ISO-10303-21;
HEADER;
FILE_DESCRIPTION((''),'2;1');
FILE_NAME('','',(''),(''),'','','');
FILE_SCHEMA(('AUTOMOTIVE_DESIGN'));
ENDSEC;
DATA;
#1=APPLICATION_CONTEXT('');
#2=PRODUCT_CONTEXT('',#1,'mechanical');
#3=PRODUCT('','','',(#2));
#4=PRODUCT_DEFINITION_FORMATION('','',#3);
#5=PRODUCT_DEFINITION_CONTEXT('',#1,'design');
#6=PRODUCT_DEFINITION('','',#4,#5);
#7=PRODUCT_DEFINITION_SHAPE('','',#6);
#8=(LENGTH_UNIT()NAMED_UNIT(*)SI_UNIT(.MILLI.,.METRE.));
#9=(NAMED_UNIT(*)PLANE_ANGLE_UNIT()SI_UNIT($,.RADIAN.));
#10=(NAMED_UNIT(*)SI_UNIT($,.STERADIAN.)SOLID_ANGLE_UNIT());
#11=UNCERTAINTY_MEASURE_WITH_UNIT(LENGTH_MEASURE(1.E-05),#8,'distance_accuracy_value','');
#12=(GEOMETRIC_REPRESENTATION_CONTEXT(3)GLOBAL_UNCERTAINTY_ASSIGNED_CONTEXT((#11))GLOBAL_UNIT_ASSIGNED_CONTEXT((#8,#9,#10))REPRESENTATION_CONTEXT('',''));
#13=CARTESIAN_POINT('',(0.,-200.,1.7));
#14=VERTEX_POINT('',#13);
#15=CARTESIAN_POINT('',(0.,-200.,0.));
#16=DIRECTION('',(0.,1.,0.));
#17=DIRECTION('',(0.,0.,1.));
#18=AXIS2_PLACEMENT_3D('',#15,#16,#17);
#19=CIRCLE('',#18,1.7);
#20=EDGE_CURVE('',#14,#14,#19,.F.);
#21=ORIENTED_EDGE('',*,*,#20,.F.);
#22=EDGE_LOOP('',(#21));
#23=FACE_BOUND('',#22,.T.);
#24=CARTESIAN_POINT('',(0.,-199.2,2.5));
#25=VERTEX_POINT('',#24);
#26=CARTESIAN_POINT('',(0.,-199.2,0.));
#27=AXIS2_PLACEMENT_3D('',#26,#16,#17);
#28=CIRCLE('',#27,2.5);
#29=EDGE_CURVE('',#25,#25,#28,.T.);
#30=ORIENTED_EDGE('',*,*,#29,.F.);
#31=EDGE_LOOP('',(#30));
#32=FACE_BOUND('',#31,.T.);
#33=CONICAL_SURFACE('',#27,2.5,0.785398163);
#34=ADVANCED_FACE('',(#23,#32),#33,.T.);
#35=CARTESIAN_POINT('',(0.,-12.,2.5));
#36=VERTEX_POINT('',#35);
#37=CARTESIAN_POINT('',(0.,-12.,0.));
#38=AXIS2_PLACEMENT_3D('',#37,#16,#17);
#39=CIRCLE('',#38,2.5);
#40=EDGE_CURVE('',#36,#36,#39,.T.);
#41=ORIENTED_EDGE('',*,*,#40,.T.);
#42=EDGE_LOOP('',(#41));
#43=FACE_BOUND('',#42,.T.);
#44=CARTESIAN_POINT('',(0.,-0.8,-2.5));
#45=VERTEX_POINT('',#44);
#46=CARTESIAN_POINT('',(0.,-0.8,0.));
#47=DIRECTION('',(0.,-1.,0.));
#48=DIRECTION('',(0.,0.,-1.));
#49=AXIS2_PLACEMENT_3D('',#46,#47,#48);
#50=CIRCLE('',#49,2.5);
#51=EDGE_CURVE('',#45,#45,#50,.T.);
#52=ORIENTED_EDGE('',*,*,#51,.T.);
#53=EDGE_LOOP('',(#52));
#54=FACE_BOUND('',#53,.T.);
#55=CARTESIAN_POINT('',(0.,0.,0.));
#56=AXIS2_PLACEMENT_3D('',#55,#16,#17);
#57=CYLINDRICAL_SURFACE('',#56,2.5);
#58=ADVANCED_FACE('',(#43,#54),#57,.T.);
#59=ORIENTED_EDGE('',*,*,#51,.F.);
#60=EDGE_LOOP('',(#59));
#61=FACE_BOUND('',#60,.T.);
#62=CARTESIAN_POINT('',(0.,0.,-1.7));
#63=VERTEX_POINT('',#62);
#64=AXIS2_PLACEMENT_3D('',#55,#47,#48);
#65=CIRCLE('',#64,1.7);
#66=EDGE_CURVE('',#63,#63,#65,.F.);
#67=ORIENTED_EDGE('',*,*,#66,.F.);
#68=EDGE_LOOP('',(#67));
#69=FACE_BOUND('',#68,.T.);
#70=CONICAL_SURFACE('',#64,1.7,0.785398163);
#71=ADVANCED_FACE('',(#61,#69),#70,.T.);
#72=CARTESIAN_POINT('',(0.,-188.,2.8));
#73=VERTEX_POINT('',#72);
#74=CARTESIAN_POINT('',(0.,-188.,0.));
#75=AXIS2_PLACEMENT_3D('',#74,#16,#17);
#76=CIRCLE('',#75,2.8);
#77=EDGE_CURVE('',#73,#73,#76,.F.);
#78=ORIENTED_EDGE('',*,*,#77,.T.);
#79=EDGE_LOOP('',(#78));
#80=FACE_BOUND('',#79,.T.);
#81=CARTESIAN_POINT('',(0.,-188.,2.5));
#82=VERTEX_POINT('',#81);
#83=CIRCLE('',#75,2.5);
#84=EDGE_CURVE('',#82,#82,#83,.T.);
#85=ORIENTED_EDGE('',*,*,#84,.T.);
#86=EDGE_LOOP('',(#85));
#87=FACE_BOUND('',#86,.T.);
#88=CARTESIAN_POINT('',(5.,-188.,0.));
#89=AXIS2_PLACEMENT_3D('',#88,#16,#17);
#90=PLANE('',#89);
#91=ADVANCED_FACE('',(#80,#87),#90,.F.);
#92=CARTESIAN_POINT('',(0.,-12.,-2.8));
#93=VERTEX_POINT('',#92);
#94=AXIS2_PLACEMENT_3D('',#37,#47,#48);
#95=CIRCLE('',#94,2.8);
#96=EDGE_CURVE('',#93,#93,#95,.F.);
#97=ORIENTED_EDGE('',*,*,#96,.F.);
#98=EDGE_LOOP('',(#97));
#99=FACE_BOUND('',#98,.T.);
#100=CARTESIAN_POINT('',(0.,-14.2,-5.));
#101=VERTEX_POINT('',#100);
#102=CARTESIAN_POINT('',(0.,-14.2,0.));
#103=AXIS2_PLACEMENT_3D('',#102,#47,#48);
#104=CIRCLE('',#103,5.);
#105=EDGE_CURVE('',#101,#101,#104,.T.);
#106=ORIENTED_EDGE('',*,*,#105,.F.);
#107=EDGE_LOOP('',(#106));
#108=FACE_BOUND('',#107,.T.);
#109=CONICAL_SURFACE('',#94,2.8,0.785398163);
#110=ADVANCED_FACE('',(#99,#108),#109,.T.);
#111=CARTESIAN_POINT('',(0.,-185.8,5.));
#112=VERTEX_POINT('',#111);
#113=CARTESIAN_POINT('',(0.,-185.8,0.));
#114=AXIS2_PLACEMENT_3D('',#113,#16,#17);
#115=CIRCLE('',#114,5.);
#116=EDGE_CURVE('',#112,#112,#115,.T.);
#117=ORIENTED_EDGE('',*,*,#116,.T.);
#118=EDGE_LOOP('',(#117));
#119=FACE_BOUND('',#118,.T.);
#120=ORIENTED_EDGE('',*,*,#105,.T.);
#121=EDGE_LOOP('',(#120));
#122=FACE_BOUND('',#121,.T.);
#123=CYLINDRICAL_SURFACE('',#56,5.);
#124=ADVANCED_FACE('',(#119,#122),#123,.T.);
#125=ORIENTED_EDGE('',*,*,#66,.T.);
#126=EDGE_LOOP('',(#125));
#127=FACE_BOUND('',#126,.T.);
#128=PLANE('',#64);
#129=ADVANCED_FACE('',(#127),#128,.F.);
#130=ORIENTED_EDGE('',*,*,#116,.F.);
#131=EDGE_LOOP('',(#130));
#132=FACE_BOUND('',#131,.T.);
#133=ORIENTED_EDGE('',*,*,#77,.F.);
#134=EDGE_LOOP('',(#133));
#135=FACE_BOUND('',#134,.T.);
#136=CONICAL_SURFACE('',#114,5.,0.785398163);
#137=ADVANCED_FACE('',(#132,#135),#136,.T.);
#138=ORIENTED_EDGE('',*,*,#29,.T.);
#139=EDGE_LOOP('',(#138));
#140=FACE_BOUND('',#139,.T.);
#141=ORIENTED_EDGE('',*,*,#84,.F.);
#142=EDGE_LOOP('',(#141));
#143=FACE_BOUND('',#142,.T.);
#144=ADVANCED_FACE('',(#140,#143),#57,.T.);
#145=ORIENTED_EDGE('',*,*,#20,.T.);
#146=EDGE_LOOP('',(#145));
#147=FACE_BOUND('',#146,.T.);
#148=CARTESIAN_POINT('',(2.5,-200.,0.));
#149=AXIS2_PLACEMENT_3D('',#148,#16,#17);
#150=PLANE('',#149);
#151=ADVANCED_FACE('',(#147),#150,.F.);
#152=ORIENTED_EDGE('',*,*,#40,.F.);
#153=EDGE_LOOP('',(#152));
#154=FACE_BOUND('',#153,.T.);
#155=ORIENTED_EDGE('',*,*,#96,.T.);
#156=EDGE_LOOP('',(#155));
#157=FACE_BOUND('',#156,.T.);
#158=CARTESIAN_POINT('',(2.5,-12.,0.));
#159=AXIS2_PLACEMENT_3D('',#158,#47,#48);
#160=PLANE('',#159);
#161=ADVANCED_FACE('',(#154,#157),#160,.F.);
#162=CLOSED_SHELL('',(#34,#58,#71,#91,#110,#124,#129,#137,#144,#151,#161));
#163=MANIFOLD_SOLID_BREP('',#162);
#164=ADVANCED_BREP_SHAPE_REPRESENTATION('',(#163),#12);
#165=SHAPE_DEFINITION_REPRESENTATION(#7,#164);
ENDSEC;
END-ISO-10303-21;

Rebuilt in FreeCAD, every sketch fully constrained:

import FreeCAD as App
import Part
import Sketcher

V = App.Vector


def edges_at(feature, points):
    """Names of the edges that pass closest to the given points."""
    edges = feature.Shape.Edges
    near = lambda p: min(range(len(edges)), key=lambda i: edges[i].distToShape(Part.Vertex(*p))[0])
    return sorted({f"Edge{near(p) + 1}" for p in points})

doc = App.newDocument("Part")
body = doc.addObject("PartDesign::Body", "Body")

# Sketch on XY plane
sketch1 = doc.addObject("Sketcher::SketchObject", "Sketch")
body.addObject(sketch1)
sketch1.AttachmentSupport = (doc.XY_Plane, [""])
sketch1.MapMode = "FlatFace"
sketch1.addGeometry([
    Part.LineSegment(V(2.5, 0, 0), V(0, 0, 0)),  # 0
    Part.LineSegment(V(0, 0, 0), V(0, -200, 0)),  # 1
    Part.LineSegment(V(0, -200, 0), V(2.5, -200, 0)),  # 2
    Part.LineSegment(V(2.5, -200, 0), V(2.5, -188, 0)),  # 3
    Part.LineSegment(V(2.5, -188, 0), V(5, -188, 0)),  # 4
    Part.LineSegment(V(5, -188, 0), V(5, -12, 0)),  # 5
    Part.LineSegment(V(5, -12, 0), V(2.5, -12, 0)),  # 6
    Part.LineSegment(V(2.5, -12, 0), V(2.5, 0, 0)),  # 7
], False)
sketch1.addConstraint([
    Sketcher.Constraint("Coincident", 0, 2, 1, 1),
    Sketcher.Constraint("Coincident", 1, 2, 2, 1),
    Sketcher.Constraint("Coincident", 2, 2, 3, 1),
    Sketcher.Constraint("Coincident", 3, 2, 4, 1),
    Sketcher.Constraint("Coincident", 4, 2, 5, 1),
    Sketcher.Constraint("Coincident", 5, 2, 6, 1),
    Sketcher.Constraint("Coincident", 6, 2, 7, 1),
    Sketcher.Constraint("Coincident", 7, 2, 0, 1),
    Sketcher.Constraint("Horizontal", 0),
    Sketcher.Constraint("Vertical", 1),
    Sketcher.Constraint("Horizontal", 2),
    Sketcher.Constraint("Vertical", 3),
    Sketcher.Constraint("Horizontal", 4),
    Sketcher.Constraint("Vertical", 5),
    Sketcher.Constraint("Horizontal", 6),
    Sketcher.Constraint("Vertical", 7),
    Sketcher.Constraint("Coincident", 0, 2, -1, 1),
    Sketcher.Constraint("Vertical", 3, 2, 6, 2),
    Sketcher.Constraint("Equal", 2, 4),
    Sketcher.Constraint("Equal", 3, 7),
    Sketcher.Constraint("DistanceY", 1, 2, 1, 1, 200.0),
    Sketcher.Constraint("DistanceY", 3, 1, 3, 2, 12.0),
    Sketcher.Constraint("DistanceX", 0, 2, 0, 1, 2.5),
])
revolution = doc.addObject("PartDesign::Revolution", "Revolution")
body.addObject(revolution)
revolution.Profile = sketch1
revolution.ReferenceAxis = (sketch1, ["V_Axis"])
revolution.Angle = 360
doc.recompute()

chamfer = doc.addObject("PartDesign::Chamfer", "Chamfer")
body.addObject(chamfer)
chamfer.Base = (revolution, edges_at(revolution, [(0, -188, -5), (0, -12, -5)]))
chamfer.Size = 2.2
doc.recompute()

chamfer2 = doc.addObject("PartDesign::Chamfer", "Chamfer001")
body.addObject(chamfer2)
chamfer2.Base = (chamfer, edges_at(chamfer, [(0, -200, -2.5), (0, 0, -2.5)]))
chamfer2.Size = 0.8

doc.recompute()
